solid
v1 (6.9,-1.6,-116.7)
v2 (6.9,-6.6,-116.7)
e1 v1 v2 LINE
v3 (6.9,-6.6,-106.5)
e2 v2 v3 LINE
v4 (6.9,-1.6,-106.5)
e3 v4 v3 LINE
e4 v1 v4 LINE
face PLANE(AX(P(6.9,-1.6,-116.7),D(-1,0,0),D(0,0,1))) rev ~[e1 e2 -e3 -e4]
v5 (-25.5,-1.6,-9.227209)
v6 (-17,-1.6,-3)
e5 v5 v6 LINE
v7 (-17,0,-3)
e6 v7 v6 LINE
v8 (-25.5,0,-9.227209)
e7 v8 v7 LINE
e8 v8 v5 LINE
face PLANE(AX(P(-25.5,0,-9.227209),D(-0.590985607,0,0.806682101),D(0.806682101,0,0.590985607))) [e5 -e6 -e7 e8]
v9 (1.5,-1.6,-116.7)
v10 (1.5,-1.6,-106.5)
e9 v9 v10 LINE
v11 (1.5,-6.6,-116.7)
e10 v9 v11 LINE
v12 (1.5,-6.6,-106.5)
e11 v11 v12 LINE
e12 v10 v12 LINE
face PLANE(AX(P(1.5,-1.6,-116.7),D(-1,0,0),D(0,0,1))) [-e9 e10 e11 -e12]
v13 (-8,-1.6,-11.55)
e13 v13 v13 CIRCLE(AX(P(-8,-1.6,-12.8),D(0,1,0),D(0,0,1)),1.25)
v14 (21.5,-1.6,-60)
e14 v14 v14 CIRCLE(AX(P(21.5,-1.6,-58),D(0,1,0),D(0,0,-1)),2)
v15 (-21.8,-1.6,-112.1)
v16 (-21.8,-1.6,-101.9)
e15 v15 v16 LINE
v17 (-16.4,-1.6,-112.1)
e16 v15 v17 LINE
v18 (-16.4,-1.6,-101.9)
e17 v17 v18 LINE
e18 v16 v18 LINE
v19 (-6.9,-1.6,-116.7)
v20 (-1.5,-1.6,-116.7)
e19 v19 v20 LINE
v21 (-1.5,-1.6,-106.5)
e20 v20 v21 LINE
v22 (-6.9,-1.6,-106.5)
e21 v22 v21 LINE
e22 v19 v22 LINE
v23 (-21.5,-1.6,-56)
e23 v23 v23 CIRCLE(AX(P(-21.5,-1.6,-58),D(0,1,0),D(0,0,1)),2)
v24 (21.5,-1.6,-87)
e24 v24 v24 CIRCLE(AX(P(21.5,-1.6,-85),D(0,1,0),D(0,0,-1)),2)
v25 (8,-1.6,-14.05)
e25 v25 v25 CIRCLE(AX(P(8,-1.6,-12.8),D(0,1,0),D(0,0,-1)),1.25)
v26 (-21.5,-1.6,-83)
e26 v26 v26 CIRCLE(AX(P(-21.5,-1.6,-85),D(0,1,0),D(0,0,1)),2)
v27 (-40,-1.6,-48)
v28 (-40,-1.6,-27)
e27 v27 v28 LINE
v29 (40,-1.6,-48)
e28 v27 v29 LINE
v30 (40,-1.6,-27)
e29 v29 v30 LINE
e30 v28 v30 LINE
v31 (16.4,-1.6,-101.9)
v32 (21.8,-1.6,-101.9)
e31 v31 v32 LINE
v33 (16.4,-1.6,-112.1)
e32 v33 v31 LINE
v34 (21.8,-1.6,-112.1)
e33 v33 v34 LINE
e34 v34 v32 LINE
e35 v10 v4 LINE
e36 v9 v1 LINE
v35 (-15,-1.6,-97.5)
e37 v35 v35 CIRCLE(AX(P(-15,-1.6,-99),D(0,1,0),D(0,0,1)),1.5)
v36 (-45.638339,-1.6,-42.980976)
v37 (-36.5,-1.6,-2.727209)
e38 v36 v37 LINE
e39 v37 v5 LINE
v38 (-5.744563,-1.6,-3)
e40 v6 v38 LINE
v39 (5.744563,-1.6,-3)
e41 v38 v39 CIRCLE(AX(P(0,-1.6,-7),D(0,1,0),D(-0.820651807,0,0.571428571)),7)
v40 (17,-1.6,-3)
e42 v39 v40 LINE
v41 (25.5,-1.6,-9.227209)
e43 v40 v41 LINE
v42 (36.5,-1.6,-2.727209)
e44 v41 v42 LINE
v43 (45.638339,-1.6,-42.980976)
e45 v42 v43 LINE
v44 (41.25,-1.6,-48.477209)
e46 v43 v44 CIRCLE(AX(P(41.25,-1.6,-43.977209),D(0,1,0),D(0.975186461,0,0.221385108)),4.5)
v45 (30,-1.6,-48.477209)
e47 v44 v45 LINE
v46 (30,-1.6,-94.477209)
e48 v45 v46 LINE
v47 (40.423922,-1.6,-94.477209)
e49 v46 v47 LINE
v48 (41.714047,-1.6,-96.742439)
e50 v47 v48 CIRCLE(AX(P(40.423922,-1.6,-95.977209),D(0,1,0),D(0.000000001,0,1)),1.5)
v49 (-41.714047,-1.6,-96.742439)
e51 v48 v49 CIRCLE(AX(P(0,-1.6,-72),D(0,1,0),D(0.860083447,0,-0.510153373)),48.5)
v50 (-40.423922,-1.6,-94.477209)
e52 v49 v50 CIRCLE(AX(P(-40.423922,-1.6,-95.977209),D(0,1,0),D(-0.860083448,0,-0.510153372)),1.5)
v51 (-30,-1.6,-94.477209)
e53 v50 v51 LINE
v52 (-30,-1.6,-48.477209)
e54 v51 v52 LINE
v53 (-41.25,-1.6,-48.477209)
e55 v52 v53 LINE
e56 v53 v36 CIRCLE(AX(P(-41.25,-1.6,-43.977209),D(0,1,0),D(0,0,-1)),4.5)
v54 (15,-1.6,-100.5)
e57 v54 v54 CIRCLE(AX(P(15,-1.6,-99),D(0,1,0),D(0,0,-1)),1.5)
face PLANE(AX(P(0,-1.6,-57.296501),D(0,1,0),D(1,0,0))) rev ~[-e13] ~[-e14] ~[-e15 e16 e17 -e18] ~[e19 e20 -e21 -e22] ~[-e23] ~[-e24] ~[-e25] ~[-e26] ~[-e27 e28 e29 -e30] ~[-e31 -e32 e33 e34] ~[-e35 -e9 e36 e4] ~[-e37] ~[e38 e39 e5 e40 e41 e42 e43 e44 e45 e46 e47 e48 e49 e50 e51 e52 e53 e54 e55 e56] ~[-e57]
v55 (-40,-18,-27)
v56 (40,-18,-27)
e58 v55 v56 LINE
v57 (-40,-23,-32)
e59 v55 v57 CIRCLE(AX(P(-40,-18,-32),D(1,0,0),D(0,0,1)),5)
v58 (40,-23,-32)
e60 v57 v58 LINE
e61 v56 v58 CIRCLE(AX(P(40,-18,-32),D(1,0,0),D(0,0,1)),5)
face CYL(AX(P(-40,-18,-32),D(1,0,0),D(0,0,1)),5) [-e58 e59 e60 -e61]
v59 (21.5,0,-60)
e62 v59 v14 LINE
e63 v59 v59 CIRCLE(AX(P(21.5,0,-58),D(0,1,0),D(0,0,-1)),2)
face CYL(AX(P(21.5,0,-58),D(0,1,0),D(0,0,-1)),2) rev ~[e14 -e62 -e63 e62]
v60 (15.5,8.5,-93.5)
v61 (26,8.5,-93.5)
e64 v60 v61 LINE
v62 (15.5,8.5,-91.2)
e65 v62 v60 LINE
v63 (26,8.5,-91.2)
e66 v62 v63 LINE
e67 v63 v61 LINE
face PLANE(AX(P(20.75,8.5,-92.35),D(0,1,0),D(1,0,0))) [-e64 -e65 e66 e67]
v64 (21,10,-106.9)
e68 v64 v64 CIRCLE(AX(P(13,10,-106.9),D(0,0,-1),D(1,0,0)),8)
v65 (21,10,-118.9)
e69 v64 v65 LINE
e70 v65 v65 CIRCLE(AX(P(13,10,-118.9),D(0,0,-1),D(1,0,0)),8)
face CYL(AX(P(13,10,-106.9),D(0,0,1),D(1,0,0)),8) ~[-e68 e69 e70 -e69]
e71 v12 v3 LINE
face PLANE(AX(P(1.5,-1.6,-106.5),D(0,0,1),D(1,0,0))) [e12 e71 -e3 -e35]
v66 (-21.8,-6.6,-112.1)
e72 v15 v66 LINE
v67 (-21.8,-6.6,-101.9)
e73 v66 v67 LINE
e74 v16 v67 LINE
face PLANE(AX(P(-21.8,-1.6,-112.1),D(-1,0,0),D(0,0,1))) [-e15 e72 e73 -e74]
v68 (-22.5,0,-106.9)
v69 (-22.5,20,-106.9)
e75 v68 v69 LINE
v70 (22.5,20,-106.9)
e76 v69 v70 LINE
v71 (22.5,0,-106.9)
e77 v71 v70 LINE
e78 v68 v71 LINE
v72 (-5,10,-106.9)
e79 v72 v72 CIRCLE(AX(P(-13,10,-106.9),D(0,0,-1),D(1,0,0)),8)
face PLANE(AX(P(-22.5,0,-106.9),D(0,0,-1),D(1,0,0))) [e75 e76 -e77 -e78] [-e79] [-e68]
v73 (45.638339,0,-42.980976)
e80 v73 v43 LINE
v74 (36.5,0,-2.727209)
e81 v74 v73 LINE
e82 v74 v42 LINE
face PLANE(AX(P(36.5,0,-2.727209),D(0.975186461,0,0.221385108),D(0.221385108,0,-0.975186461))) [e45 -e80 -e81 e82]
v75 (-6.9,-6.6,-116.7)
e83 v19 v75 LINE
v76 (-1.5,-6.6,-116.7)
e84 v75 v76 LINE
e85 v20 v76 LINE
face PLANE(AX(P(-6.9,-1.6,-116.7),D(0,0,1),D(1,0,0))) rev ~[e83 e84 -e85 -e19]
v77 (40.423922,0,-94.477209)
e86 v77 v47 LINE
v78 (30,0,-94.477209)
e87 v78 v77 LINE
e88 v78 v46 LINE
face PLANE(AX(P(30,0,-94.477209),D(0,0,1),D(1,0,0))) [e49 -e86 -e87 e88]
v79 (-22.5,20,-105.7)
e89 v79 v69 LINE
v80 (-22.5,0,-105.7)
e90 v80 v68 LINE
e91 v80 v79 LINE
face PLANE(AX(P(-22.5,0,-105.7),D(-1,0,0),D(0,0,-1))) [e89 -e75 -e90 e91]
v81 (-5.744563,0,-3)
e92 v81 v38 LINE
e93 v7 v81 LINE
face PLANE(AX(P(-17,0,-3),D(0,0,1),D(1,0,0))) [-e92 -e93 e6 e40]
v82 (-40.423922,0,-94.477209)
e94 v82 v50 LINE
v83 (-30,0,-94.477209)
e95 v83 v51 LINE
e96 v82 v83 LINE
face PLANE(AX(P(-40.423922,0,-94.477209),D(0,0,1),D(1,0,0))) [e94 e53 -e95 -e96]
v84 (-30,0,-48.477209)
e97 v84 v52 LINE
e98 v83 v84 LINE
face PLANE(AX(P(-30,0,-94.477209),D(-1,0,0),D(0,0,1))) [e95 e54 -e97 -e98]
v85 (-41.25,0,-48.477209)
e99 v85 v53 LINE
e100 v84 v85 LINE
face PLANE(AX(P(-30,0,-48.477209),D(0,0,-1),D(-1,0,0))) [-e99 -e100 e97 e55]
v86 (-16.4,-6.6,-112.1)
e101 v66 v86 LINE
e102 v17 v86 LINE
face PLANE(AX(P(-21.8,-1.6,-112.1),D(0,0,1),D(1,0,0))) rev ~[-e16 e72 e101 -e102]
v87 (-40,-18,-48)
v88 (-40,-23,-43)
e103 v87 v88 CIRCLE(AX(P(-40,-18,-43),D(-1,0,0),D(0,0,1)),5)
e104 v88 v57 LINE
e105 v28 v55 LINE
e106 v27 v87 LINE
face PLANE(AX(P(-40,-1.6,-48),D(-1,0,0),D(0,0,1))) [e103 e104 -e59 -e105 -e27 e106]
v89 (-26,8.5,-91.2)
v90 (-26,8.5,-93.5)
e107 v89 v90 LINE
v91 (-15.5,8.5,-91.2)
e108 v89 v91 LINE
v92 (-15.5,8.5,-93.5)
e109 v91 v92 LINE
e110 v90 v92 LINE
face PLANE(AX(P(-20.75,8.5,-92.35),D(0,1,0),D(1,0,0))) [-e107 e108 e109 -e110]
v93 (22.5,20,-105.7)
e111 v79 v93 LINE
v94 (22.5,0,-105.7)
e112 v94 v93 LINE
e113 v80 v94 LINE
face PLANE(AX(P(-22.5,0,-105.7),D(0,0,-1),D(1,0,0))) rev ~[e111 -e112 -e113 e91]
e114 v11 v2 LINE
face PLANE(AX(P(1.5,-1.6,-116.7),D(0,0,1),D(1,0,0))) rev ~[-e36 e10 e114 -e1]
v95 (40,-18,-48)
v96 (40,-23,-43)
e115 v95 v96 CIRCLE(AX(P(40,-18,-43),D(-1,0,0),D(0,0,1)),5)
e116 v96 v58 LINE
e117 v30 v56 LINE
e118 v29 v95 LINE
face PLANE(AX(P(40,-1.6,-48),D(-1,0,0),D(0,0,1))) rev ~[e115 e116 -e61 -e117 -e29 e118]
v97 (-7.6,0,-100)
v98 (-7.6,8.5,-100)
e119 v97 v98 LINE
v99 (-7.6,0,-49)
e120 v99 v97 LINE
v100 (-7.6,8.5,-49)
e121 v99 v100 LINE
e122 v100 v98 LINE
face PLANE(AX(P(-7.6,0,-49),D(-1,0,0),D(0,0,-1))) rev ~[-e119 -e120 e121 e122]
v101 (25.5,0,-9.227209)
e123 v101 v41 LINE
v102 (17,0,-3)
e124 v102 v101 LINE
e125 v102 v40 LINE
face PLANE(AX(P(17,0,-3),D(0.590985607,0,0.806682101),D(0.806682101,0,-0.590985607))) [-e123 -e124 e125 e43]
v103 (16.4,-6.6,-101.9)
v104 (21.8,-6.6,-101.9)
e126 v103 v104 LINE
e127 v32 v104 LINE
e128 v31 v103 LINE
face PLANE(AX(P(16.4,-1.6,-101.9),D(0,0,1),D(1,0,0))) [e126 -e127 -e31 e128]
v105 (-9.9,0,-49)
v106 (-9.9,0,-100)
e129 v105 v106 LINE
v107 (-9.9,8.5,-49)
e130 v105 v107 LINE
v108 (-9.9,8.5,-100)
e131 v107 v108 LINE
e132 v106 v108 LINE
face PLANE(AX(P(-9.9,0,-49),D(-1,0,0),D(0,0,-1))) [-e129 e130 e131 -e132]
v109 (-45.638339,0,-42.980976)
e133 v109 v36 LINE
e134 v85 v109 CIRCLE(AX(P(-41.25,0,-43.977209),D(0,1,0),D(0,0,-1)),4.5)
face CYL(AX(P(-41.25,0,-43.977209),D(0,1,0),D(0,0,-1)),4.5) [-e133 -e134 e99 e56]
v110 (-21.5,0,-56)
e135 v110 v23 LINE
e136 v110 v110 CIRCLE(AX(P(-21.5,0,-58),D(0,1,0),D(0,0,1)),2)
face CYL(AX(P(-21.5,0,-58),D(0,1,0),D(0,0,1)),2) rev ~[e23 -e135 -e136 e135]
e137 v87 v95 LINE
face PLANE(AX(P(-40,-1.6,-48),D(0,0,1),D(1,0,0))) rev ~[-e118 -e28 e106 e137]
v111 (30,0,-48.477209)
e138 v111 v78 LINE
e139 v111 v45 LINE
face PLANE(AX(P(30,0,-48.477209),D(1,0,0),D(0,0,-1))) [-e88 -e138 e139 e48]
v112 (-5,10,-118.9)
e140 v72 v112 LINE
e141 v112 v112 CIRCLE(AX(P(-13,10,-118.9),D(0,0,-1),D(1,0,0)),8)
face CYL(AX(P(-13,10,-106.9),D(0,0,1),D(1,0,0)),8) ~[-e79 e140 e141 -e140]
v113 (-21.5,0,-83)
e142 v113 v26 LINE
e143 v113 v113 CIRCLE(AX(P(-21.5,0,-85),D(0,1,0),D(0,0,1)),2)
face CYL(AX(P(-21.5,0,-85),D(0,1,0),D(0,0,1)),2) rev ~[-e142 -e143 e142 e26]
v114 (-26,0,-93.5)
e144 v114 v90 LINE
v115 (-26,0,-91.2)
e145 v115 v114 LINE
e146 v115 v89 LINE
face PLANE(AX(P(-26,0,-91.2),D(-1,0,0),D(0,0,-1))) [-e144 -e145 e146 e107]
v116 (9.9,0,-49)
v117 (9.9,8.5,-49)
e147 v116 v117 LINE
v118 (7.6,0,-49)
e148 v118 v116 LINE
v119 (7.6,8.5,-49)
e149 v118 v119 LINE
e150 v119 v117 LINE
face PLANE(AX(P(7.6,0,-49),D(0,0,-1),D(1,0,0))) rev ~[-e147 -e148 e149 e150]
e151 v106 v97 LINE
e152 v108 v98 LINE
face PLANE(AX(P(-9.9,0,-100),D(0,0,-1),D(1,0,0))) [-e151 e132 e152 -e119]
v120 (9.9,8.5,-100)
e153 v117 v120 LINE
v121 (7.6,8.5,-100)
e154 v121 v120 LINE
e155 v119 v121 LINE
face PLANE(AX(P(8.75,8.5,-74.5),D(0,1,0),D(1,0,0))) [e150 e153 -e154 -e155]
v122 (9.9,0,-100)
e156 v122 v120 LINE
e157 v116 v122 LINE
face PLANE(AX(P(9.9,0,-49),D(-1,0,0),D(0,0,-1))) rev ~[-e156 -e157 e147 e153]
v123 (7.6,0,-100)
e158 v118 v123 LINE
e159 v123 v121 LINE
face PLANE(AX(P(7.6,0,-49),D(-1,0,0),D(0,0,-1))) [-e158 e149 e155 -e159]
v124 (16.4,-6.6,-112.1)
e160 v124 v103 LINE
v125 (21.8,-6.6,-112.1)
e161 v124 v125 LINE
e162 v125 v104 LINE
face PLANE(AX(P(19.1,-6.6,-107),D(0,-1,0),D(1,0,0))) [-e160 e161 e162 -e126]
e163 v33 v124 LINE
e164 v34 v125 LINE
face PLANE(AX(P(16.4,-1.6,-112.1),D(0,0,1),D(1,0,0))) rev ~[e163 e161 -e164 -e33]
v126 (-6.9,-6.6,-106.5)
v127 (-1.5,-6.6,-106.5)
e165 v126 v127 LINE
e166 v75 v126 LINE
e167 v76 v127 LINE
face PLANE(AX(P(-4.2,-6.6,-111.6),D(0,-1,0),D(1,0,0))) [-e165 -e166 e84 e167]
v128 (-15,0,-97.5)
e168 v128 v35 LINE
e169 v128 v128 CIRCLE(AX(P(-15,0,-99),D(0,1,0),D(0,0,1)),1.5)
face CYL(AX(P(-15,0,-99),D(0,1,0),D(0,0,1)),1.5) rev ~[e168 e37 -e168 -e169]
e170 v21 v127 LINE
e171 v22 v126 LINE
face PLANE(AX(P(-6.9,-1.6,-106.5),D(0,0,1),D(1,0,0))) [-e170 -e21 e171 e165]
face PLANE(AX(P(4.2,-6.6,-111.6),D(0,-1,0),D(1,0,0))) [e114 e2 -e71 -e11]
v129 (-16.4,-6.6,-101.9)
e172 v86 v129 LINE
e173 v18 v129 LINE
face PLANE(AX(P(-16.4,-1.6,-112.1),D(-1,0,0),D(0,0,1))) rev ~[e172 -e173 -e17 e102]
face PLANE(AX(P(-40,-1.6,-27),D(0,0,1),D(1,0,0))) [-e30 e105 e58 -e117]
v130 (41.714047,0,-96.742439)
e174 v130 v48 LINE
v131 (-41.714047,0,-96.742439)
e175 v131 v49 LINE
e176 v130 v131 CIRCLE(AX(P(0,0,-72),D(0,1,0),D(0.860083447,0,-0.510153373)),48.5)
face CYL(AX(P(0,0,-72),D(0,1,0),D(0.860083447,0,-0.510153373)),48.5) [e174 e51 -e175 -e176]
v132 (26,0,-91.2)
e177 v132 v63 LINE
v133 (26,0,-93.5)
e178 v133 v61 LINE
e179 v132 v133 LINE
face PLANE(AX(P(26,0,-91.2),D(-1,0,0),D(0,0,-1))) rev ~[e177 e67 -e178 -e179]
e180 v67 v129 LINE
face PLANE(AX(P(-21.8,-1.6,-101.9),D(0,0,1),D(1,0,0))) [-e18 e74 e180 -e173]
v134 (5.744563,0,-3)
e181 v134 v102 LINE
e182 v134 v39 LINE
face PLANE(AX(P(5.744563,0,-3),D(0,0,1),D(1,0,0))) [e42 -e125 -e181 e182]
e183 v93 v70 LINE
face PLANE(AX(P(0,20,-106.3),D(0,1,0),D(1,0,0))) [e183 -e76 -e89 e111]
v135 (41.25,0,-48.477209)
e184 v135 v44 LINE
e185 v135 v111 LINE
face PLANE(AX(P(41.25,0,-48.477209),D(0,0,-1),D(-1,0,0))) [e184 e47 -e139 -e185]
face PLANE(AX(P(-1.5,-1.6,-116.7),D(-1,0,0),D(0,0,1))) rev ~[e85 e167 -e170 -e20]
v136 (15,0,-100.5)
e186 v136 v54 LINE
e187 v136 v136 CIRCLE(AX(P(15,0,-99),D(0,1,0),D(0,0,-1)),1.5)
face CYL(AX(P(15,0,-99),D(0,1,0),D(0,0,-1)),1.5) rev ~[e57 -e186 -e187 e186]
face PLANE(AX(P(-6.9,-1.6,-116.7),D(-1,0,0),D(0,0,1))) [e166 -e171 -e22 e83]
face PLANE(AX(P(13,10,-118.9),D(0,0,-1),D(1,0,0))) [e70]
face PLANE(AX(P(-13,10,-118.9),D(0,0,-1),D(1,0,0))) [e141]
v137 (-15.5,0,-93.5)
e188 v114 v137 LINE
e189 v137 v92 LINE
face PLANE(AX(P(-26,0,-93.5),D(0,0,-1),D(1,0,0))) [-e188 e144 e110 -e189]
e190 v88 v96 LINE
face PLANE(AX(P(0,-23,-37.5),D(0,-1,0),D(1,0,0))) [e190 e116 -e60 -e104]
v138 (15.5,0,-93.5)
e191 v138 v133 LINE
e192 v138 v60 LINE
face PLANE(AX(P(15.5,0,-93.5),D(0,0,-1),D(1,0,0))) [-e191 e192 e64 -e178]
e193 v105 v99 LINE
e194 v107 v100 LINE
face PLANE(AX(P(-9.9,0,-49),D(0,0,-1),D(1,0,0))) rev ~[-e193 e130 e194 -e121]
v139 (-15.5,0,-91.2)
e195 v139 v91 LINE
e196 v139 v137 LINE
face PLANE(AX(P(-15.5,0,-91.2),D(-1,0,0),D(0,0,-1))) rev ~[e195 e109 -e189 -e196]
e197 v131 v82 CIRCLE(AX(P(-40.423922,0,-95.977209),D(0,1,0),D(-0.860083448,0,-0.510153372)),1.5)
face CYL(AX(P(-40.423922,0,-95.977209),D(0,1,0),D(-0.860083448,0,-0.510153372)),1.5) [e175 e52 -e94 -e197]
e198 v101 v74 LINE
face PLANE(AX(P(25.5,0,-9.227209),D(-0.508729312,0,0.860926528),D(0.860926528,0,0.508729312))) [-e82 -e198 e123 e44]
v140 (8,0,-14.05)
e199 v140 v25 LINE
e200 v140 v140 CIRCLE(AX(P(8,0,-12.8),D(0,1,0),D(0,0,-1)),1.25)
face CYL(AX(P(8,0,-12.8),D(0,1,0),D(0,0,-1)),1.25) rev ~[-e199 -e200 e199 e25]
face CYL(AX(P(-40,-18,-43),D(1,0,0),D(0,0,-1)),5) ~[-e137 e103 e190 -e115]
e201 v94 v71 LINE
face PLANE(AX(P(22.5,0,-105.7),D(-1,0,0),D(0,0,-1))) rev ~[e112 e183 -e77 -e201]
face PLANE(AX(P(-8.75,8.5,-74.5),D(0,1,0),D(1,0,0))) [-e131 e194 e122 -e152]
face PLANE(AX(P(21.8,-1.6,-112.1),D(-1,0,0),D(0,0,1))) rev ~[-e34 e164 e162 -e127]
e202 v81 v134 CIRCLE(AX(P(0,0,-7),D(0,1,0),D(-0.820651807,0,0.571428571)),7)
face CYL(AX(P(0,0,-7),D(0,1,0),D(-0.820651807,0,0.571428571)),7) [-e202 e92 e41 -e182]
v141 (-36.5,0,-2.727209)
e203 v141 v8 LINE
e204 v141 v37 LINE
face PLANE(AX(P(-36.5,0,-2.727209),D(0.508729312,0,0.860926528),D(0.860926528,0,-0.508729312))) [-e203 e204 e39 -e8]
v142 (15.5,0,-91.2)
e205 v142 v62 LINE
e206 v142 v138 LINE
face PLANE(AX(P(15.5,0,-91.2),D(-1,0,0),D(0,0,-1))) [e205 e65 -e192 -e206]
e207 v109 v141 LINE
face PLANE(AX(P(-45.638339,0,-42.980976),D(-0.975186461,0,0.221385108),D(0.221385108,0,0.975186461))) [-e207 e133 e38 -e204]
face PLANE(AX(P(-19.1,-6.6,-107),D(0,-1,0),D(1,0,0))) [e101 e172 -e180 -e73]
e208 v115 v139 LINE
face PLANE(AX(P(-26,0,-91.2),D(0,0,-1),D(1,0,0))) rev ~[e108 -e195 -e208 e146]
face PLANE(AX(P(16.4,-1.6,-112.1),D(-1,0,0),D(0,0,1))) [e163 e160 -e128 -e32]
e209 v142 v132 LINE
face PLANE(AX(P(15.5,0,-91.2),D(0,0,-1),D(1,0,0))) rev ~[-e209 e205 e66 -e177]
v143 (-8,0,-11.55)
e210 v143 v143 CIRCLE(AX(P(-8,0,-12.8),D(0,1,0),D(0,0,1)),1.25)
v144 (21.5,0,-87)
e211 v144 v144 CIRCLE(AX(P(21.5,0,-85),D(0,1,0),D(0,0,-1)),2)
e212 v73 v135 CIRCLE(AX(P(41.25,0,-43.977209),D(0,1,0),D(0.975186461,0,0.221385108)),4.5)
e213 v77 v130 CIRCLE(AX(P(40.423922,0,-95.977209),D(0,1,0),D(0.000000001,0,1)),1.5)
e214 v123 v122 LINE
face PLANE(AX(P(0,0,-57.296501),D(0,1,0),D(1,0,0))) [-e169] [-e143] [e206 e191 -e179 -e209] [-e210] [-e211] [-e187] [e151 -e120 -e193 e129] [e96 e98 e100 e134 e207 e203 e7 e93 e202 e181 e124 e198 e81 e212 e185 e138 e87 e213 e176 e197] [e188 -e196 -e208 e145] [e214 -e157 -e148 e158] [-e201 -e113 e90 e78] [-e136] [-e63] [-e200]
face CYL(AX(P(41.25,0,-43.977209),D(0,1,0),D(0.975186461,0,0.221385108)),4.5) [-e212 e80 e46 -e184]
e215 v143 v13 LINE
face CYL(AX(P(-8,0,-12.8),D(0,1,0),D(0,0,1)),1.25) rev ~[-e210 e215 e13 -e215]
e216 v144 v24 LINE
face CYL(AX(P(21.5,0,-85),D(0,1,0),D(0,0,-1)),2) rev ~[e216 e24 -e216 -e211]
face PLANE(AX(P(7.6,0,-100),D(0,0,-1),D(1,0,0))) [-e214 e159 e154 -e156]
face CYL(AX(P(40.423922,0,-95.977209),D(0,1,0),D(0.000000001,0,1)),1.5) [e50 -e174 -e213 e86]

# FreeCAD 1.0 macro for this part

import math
import FreeCAD as App
import Part
import Sketcher
from FreeCAD import Vector


def edges_at(feature, points):
    """Names of the edges that pass closest to the given points."""
    edges = feature.Shape.Edges
    near = lambda p: min(range(len(edges)), key=lambda i: edges[i].distToShape(Part.Vertex(*p))[0])
    return sorted({f"Edge{near(p) + 1}" for p in points})

doc = App.newDocument("Part")
body = doc.addObject("PartDesign::Body", "Body")

# Sketch on XZ plane
sketch1 = doc.addObject("Sketcher::SketchObject", "Sketch")
body.addObject(sketch1)
sketch1.AttachmentSupport = (doc.XZ_Plane, [""])
sketch1.MapMode = "FlatFace"
sketch1.addGeometry([
    Part.LineSegment(Vector(-25.5, -9.2, 0), Vector(-17, -3, 0)),  # 0
    Part.LineSegment(Vector(-17, -3, 0), Vector(-5.7, -3, 0)),  # 1
    Part.ArcOfCircle(Part.Circle(Vector(0, -7, 0), Vector(0, 0, 1), 7), math.radians(35), math.radians(145)),  # 2
    Part.LineSegment(Vector(5.7, -3, 0), Vector(17, -3, 0)),  # 3
    Part.LineSegment(Vector(17, -3, 0), Vector(25.5, -9.2, 0)),  # 4
    Part.LineSegment(Vector(25.5, -9.2, 0), Vector(36.5, -2.7, 0)),  # 5
    Part.LineSegment(Vector(36.5, -2.7, 0), Vector(45.6, -43, 0)),  # 6
    Part.ArcOfCircle(Part.Circle(Vector(41.3, -44, 0), Vector(0, 0, 1), 4.5), math.radians(-90), math.radians(13)),  # 7
    Part.LineSegment(Vector(41.2, -48.5, 0), Vector(30, -48.5, 0)),  # 8
    Part.LineSegment(Vector(30, -48.5, 0), Vector(30, -94.5, 0)),  # 9
    Part.LineSegment(Vector(30, -94.5, 0), Vector(40.4, -94.5, 0)),  # 10
    Part.ArcOfCircle(Part.Circle(Vector(40.4, -96, 0), Vector(0, 0, 1), 1.5), math.radians(-31), math.radians(90)),  # 11
    Part.ArcOfCircle(Part.Circle(Vector(0, -72, 0), Vector(0, 0, 1), 48.5), math.radians(-149), math.radians(-31)),  # 12
    Part.ArcOfCircle(Part.Circle(Vector(-40.4, -96, 0), Vector(0, 0, 1), 1.5), math.radians(90), math.radians(211)),  # 13
    Part.LineSegment(Vector(-40.4, -94.5, 0), Vector(-30, -94.5, 0)),  # 14
    Part.LineSegment(Vector(-30, -94.5, 0), Vector(-30, -48.5, 0)),  # 15
    Part.LineSegment(Vector(-30, -48.5, 0), Vector(-41.2, -48.5, 0)),  # 16
    Part.ArcOfCircle(Part.Circle(Vector(-41.3, -44, 0), Vector(0, 0, 1), 4.5), math.radians(167), math.radians(270)),  # 17
    Part.LineSegment(Vector(-45.6, -43, 0), Vector(-36.5, -2.7, 0)),  # 18
    Part.LineSegment(Vector(-36.5, -2.7, 0), Vector(-25.5, -9.2, 0)),  # 19
], False)
sketch1.addConstraint([
    Sketcher.Constraint("Coincident", 0, 2, 1, 1),
    Sketcher.Constraint("Coincident", 1, 2, 2, 2),
    Sketcher.Constraint("Coincident", 2, 1, 3, 1),
    Sketcher.Constraint("Coincident", 3, 2, 4, 1),
    Sketcher.Constraint("Coincident", 4, 2, 5, 1),
    Sketcher.Constraint("Coincident", 5, 2, 6, 1),
    Sketcher.Constraint("Tangent", 6, 2, 7, 2),
    Sketcher.Constraint("Tangent", 7, 1, 8, 1),
    Sketcher.Constraint("Coincident", 8, 2, 9, 1),
    Sketcher.Constraint("Coincident", 9, 2, 10, 1),
    Sketcher.Constraint("Tangent", 10, 2, 11, 2),
    Sketcher.Constraint("Tangent", 11, 1, 12, 2),
    Sketcher.Constraint("Tangent", 12, 1, 13, 2),
    Sketcher.Constraint("Tangent", 13, 1, 14, 1),
    Sketcher.Constraint("Coincident", 14, 2, 15, 1),
    Sketcher.Constraint("Coincident", 15, 2, 16, 1),
    Sketcher.Constraint("Tangent", 16, 2, 17, 2),
    Sketcher.Constraint("Tangent", 17, 1, 18, 1),
    Sketcher.Constraint("Coincident", 18, 2, 19, 1),
    Sketcher.Constraint("Coincident", 19, 2, 0, 1),
    Sketcher.Constraint("Horizontal", 1),
    Sketcher.Constraint("Horizontal", 3),
    Sketcher.Constraint("Horizontal", 8),
    Sketcher.Constraint("Vertical", 9),
    Sketcher.Constraint("Horizontal", 10),
    Sketcher.Constraint("Horizontal", 14),
    Sketcher.Constraint("Vertical", 15),
    Sketcher.Constraint("Horizontal", 16),
    Sketcher.Constraint("Equal", 11, 13),
    Sketcher.Constraint("Equal", 7, 17),
    Sketcher.Constraint("Symmetric", 11, 3, 13, 3, -2),
    Sketcher.Constraint("Symmetric", 7, 3, 17, 3, -2),
    Sketcher.Constraint("Symmetric", 1, 2, 2, 1, -2),
    Sketcher.Constraint("Symmetric", 5, 2, 18, 2, -2),
    Sketcher.Constraint("Symmetric", 4, 2, 19, 2, -2),
    Sketcher.Constraint("Equal", 1, 3),
    Sketcher.Constraint("Equal", 10, 14),
    Sketcher.Constraint("Radius", 2, 7.0),
    Sketcher.Constraint("Radius", 7, 4.5),
    Sketcher.Constraint("Radius", 11, 1.5),
    Sketcher.Constraint("Radius", 12, 48.5),
    Sketcher.Constraint("DistanceY", 9, 2, 9, 1, 46.0),
    Sketcher.Constraint("DistanceY", 2, 3, -1, 1, 7.0),
    Sketcher.Constraint("DistanceY", 12, 3, -1, 1, 72.0),
    Sketcher.Constraint("DistanceX", 0, 2, -1, 1, 17.0),
    Sketcher.Constraint("DistanceY", 0, 2, -1, 1, 3.0),
    Sketcher.Constraint("DistanceX", -1, 1, 8, 2, 30.0),
    Sketcher.Constraint("DistanceX", 4, 2, 5, 2, 11.0),
    Sketcher.Constraint("DistanceX", 8, 2, 8, 1, 11.25),
    Sketcher.Constraint("DistanceX", -1, 1, 4, 2, 25.5),
    Sketcher.Constraint("DistanceY", 4, 2, 5, 2, 6.5),
    Sketcher.Constraint("DistanceY", 7, 3, 4, 2, 34.75),
    Sketcher.Constraint("Distance", 0, 10.536988),
])
pad1 = doc.addObject("PartDesign::Pad", "Pad")
body.addObject(pad1)
pad1.Profile = sketch1
pad1.Length = 1.6

# Sketch on XZ plane
sketch2 = doc.addObject("Sketcher::SketchObject", "Sketch001")
body.addObject(sketch2)
sketch2.AttachmentSupport = (doc.XZ_Plane, [""])
sketch2.MapMode = "FlatFace"
sketch2.addGeometry([
    Part.LineSegment(Vector(-22.5, -106.9, 0), Vector(-22.5, -105.7, 0)),
    Part.LineSegment(Vector(-22.5, -105.7, 0), Vector(22.5, -105.7, 0)),
    Part.LineSegment(Vector(22.5, -105.7, 0), Vector(22.5, -106.9, 0)),
    Part.LineSegment(Vector(22.5, -106.9, 0), Vector(-22.5, -106.9, 0)),
], False)
sketch2.addConstraint([
    Sketcher.Constraint("Coincident", 0, 2, 1, 1),
    Sketcher.Constraint("Coincident", 1, 2, 2, 1),
    Sketcher.Constraint("Coincident", 2, 2, 3, 1),
    Sketcher.Constraint("Coincident", 3, 2, 0, 1),
    Sketcher.Constraint("Vertical", 0),
    Sketcher.Constraint("Horizontal", 1),
    Sketcher.Constraint("Vertical", 2),
    Sketcher.Constraint("Horizontal", 3),
    Sketcher.Constraint("DistanceX", 1, 1, 1, 2, 45.0),
    Sketcher.Constraint("DistanceY", 0, 1, 0, 2, 1.2),
    Sketcher.Constraint("DistanceX", 0, 2, -1, 1, 22.5),
    Sketcher.Constraint("DistanceY", 0, 2, -1, 1, 105.7),
])
pad2 = doc.addObject("PartDesign::Pad", "Pad001")
body.addObject(pad2)
pad2.Profile = sketch2
pad2.Length = 20
pad2.Reversed = True

# Sketch on XY plane
sketch3 = doc.addObject("Sketcher::SketchObject", "Sketch002")
body.addObject(sketch3)
sketch3.AttachmentSupport = (doc.XY_Plane, [""])
sketch3.MapMode = "FlatFace"
sketch3.AttachmentOffset = App.Placement(Vector(0, 0, -106.9), App.Rotation())
sketch3.addGeometry([
    Part.Circle(Vector(13, 10, 0), Vector(0, 0, 1), 8),
    Part.Circle(Vector(-13, 10, 0), Vector(0, 0, 1), 8),
], False)
sketch3.addConstraint([
    Sketcher.Constraint("Equal", 0, 1),
    Sketcher.Constraint("Symmetric", 0, 3, 1, 3, -2),
    Sketcher.Constraint("Diameter", 0, 16.0),
    Sketcher.Constraint("DistanceX", -1, 1, 0, 3, 13.0),
    Sketcher.Constraint("DistanceY", -1, 1, 0, 3, 10.0),
])
pad3 = doc.addObject("PartDesign::Pad", "Pad002")
body.addObject(pad3)
pad3.Profile = sketch3
pad3.Length = 12
pad3.Reversed = True

# Sketch on XZ plane
sketch4 = doc.addObject("Sketcher::SketchObject", "Sketch003")
body.addObject(sketch4)
sketch4.AttachmentSupport = (doc.XZ_Plane, [""])
sketch4.MapMode = "FlatFace"
sketch4.AttachmentOffset = App.Placement(Vector(0, 0, 1.6), App.Rotation())
sketch4.addGeometry([
    Part.LineSegment(Vector(-40, -27, 0), Vector(-40, -48, 0)),
    Part.LineSegment(Vector(-40, -48, 0), Vector(40, -48, 0)),
    Part.LineSegment(Vector(40, -48, 0), Vector(40, -27, 0)),
    Part.LineSegment(Vector(40, -27, 0), Vector(-40, -27, 0)),
], False)
sketch4.addConstraint([
    Sketcher.Constraint("Coincident", 0, 2, 1, 1),
    Sketcher.Constraint("Coincident", 1, 2, 2, 1),
    Sketcher.Constraint("Coincident", 2, 2, 3, 1),
    Sketcher.Constraint("Coincident", 3, 2, 0, 1),
    Sketcher.Constraint("Vertical", 0),
    Sketcher.Constraint("Horizontal", 1),
    Sketcher.Constraint("Vertical", 2),
    Sketcher.Constraint("Horizontal", 3),
    Sketcher.Constraint("DistanceX", 1, 1, 1, 2, 80.0),
    Sketcher.Constraint("DistanceY", 0, 2, 0, 1, 21.0),
    Sketcher.Constraint("DistanceX", 0, 2, -1, 1, 40.0),
    Sketcher.Constraint("DistanceY", 0, 2, -1, 1, 48.0),
])
pad4 = doc.addObject("PartDesign::Pad", "Pad003")
body.addObject(pad4)
pad4.Profile = sketch4
pad4.Length = 21.4
doc.recompute()

fillet = doc.addObject("PartDesign::Fillet", "Fillet")
body.addObject(fillet)
fillet.Base = (pad4, edges_at(pad4, [(0, -23, -48), (0, -23, -27)]))
fillet.Radius = 5

# Sketch on XZ plane
sketch5 = doc.addObject("Sketcher::SketchObject", "Sketch004")
body.addObject(sketch5)
sketch5.AttachmentSupport = (doc.XZ_Plane, [""])
sketch5.MapMode = "FlatFace"
sketch5.addGeometry(Part.Circle(Vector(-8, -12.8, 0), Vector(0, 0, 1), 1.2), False)
sketch5.addConstraint([
    Sketcher.Constraint("Diameter", 0, 2.5),
    Sketcher.Constraint("DistanceX", 0, 3, -1, 1, 8.0),
    Sketcher.Constraint("DistanceY", 0, 3, -1, 1, 12.8),
])
pocket1 = doc.addObject("PartDesign::Pocket", "Pocket")
body.addObject(pocket1)
pocket1.Profile = sketch5
pocket1.Type = "UpToFirst"
pocket1.Reversed = True

# Sketch on XZ plane
sketch6 = doc.addObject("Sketcher::SketchObject", "Sketch005")
body.addObject(sketch6)
sketch6.AttachmentSupport = (doc.XZ_Plane, [""])
sketch6.MapMode = "FlatFace"
sketch6.addGeometry(Part.Circle(Vector(-21.5, -58, 0), Vector(0, 0, 1), 2), False)
sketch6.addConstraint([
    Sketcher.Constraint("Diameter", 0, 4.0),
    Sketcher.Constraint("DistanceY", 0, 3, -1, 1, 58.0),
    Sketcher.Constraint("DistanceX", 0, 3, -1, 1, 21.5),
])
pocket2 = doc.addObject("PartDesign::Pocket", "Pocket001")
body.addObject(pocket2)
pocket2.Profile = sketch6
pocket2.Type = "UpToFirst"
pocket2.Reversed = True

# Sketch on XZ plane
sketch7 = doc.addObject("Sketcher::SketchObject", "Sketch006")
body.addObject(sketch7)
sketch7.AttachmentSupport = (doc.XZ_Plane, [""])
sketch7.MapMode = "FlatFace"
sketch7.addGeometry(Part.Circle(Vector(-21.5, -85, 0), Vector(0, 0, 1), 2), False)
sketch7.addConstraint([
    Sketcher.Constraint("Diameter", 0, 4.0),
    Sketcher.Constraint("DistanceY", 0, 3, -1, 1, 85.0),
    Sketcher.Constraint("DistanceX", 0, 3, -1, 1, 21.5),
])
pocket3 = doc.addObject("PartDesign::Pocket", "Pocket002")
body.addObject(pocket3)
pocket3.Profile = sketch7
pocket3.Type = "UpToFirst"
pocket3.Reversed = True

# Sketch on XZ plane
sketch8 = doc.addObject("Sketcher::SketchObject", "Sketch007")
body.addObject(sketch8)
sketch8.AttachmentSupport = (doc.XZ_Plane, [""])
sketch8.MapMode = "FlatFace"
sketch8.addGeometry(Part.Circle(Vector(-15, -99, 0), Vector(0, 0, 1), 1.5), False)
sketch8.addConstraint([
    Sketcher.Constraint("Diameter", 0, 3.0),
    Sketcher.Constraint("DistanceX", 0, 3, -1, 1, 15.0),
    Sketcher.Constraint("DistanceY", 0, 3, -1, 1, 99.0),
])
pocket4 = doc.addObject("PartDesign::Pocket", "Pocket003")
body.addObject(pocket4)
pocket4.Profile = sketch8
pocket4.Type = "UpToFirst"
pocket4.Reversed = True

# Sketch on XZ plane
sketch9 = doc.addObject("Sketcher::SketchObject", "Sketch008")
body.addObject(sketch9)
sketch9.AttachmentSupport = (doc.XZ_Plane, [""])
sketch9.MapMode = "FlatFace"
sketch9.addGeometry(Part.Circle(Vector(15, -99, 0), Vector(0, 0, 1), 1.5), False)
sketch9.addConstraint([
    Sketcher.Constraint("Diameter", 0, 3.0),
    Sketcher.Constraint("DistanceX", -1, 1, 0, 3, 15.0),
    Sketcher.Constraint("DistanceY", 0, 3, -1, 1, 99.0),
])
pocket5 = doc.addObject("PartDesign::Pocket", "Pocket004")
body.addObject(pocket5)
pocket5.Profile = sketch9
pocket5.Type = "UpToFirst"
pocket5.Reversed = True

# Sketch on XZ plane
sketch10 = doc.addObject("Sketcher::SketchObject", "Sketch009")
body.addObject(sketch10)
sketch10.AttachmentSupport = (doc.XZ_Plane, [""])
sketch10.MapMode = "FlatFace"
sketch10.addGeometry(Part.Circle(Vector(21.5, -85, 0), Vector(0, 0, 1), 2), False)
sketch10.addConstraint([
    Sketcher.Constraint("Diameter", 0, 4.0),
    Sketcher.Constraint("DistanceY", 0, 3, -1, 1, 85.0),
    Sketcher.Constraint("DistanceX", -1, 1, 0, 3, 21.5),
])
pocket6 = doc.addObject("PartDesign::Pocket", "Pocket005")
body.addObject(pocket6)
pocket6.Profile = sketch10
pocket6.Type = "UpToFirst"
pocket6.Reversed = True

# Sketch on XZ plane
sketch11 = doc.addObject("Sketcher::SketchObject", "Sketch010")
body.addObject(sketch11)
sketch11.AttachmentSupport = (doc.XZ_Plane, [""])
sketch11.MapMode = "FlatFace"
sketch11.addGeometry(Part.Circle(Vector(21.5, -58, 0), Vector(0, 0, 1), 2), False)
sketch11.addConstraint([
    Sketcher.Constraint("Diameter", 0, 4.0),
    Sketcher.Constraint("DistanceY", 0, 3, -1, 1, 58.0),
    Sketcher.Constraint("DistanceX", -1, 1, 0, 3, 21.5),
])
pocket7 = doc.addObject("PartDesign::Pocket", "Pocket006")
body.addObject(pocket7)
pocket7.Profile = sketch11
pocket7.Type = "UpToFirst"
pocket7.Reversed = True

# Sketch on XZ plane
sketch12 = doc.addObject("Sketcher::SketchObject", "Sketch011")
body.addObject(sketch12)
sketch12.AttachmentSupport = (doc.XZ_Plane, [""])
sketch12.MapMode = "FlatFace"
sketch12.addGeometry(Part.Circle(Vector(8, -12.8, 0), Vector(0, 0, 1), 1.2), False)
sketch12.addConstraint([
    Sketcher.Constraint("Diameter", 0, 2.5),
    Sketcher.Constraint("DistanceX", -1, 1, 0, 3, 8.0),
    Sketcher.Constraint("DistanceY", 0, 3, -1, 1, 12.8),
])
pocket8 = doc.addObject("PartDesign::Pocket", "Pocket007")
body.addObject(pocket8)
pocket8.Profile = sketch12
pocket8.Type = "UpToFirst"
pocket8.Reversed = True

# Sketch on XZ plane
sketch13 = doc.addObject("Sketcher::SketchObject", "Sketch012")
body.addObject(sketch13)
sketch13.AttachmentSupport = (doc.XZ_Plane, [""])
sketch13.MapMode = "FlatFace"
sketch13.addGeometry([
    Part.LineSegment(Vector(-9.9, -100, 0), Vector(-9.9, -49, 0)),  # 0
    Part.LineSegment(Vector(-9.9, -49, 0), Vector(-7.6, -49, 0)),  # 1
    Part.LineSegment(Vector(-7.6, -49, 0), Vector(-7.6, -100, 0)),  # 2
    Part.LineSegment(Vector(-7.6, -100, 0), Vector(-9.9, -100, 0)),  # 3
    Part.LineSegment(Vector(-26, -93.5, 0), Vector(-26, -91.2, 0)),  # 4
    Part.LineSegment(Vector(-26, -91.2, 0), Vector(-15.5, -91.2, 0)),  # 5
    Part.LineSegment(Vector(-15.5, -91.2, 0), Vector(-15.5, -93.5, 0)),  # 6
    Part.LineSegment(Vector(-15.5, -93.5, 0), Vector(-26, -93.5, 0)),  # 7
    Part.LineSegment(Vector(15.5, -93.5, 0), Vector(15.5, -91.2, 0)),  # 8
    Part.LineSegment(Vector(15.5, -91.2, 0), Vector(26, -91.2, 0)),  # 9
    Part.LineSegment(Vector(26, -91.2, 0), Vector(26, -93.5, 0)),  # 10
    Part.LineSegment(Vector(26, -93.5, 0), Vector(15.5, -93.5, 0)),  # 11
    Part.LineSegment(Vector(7.6, -100, 0), Vector(7.6, -49, 0)),  # 12
    Part.LineSegment(Vector(7.6, -49, 0), Vector(9.9, -49, 0)),  # 13
    Part.LineSegment(Vector(9.9, -49, 0), Vector(9.9, -100, 0)),  # 14
    Part.LineSegment(Vector(9.9, -100, 0), Vector(7.6, -100, 0)),  # 15
], False)
sketch13.addConstraint([
    Sketcher.Constraint("Coincident", 0, 2, 1, 1),
    Sketcher.Constraint("Coincident", 1, 2, 2, 1),
    Sketcher.Constraint("Coincident", 2, 2, 3, 1),
    Sketcher.Constraint("Coincident", 3, 2, 0, 1),
    Sketcher.Constraint("Coincident", 4, 2, 5, 1),
    Sketcher.Constraint("Coincident", 5, 2, 6, 1),
    Sketcher.Constraint("Coincident", 6, 2, 7, 1),
    Sketcher.Constraint("Coincident", 7, 2, 4, 1),
    Sketcher.Constraint("Coincident", 8, 2, 9, 1),
    Sketcher.Constraint("Coincident", 9, 2, 10, 1),
    Sketcher.Constraint("Coincident", 10, 2, 11, 1),
    Sketcher.Constraint("Coincident", 11, 2, 8, 1),
    Sketcher.Constraint("Coincident", 12, 2, 13, 1),
    Sketcher.Constraint("Coincident", 13, 2, 14, 1),
    Sketcher.Constraint("Coincident", 14, 2, 15, 1),
    Sketcher.Constraint("Coincident", 15, 2, 12, 1),
    Sketcher.Constraint("Vertical", 0),
    Sketcher.Constraint("Horizontal", 1),
    Sketcher.Constraint("Vertical", 2),
    Sketcher.Constraint("Horizontal", 3),
    Sketcher.Constraint("Vertical", 4),
    Sketcher.Constraint("Horizontal", 5),
    Sketcher.Constraint("Vertical", 6),
    Sketcher.Constraint("Horizontal", 7),
    Sketcher.Constraint("Vertical", 8),
    Sketcher.Constraint("Horizontal", 9),
    Sketcher.Constraint("Vertical", 10),
    Sketcher.Constraint("Horizontal", 11),
    Sketcher.Constraint("Vertical", 12),
    Sketcher.Constraint("Horizontal", 13),
    Sketcher.Constraint("Vertical", 14),
    Sketcher.Constraint("Horizontal", 15),
    Sketcher.Constraint("Symmetric", 5, 2, 8, 2, -2),
    Sketcher.Constraint("Symmetric", 7, 2, 10, 2, -2),
    Sketcher.Constraint("Symmetric", 1, 2, 12, 2, -2),
    Sketcher.Constraint("Symmetric", 3, 2, 14, 2, -2),
    Sketcher.Constraint("Equal", 15, 4),
    Sketcher.Constraint("DistanceY", 0, 1, 0, 2, 51.0),
    Sketcher.Constraint("DistanceX", 1, 1, 1, 2, 2.3),
    Sketcher.Constraint("DistanceX", 5, 1, 5, 2, 10.5),
    Sketcher.Constraint("DistanceY", 0, 2, -1, 1, 49.0),
    Sketcher.Constraint("DistanceX", 4, 2, -1, 1, 26.0),
    Sketcher.Constraint("DistanceX", 0, 2, -1, 1, 9.9),
    Sketcher.Constraint("DistanceY", 4, 2, -1, 1, 91.2),
])
pad5 = doc.addObject("PartDesign::Pad", "Pad004")
body.addObject(pad5)
pad5.Profile = sketch13
pad5.Length = 8.5
pad5.Reversed = True

# Sketch on XZ plane
sketch14 = doc.addObject("Sketcher::SketchObject", "Sketch013")
body.addObject(sketch14)
sketch14.AttachmentSupport = (doc.XZ_Plane, [""])
sketch14.MapMode = "FlatFace"
sketch14.AttachmentOffset = App.Placement(Vector(0, 0, 1.6), App.Rotation())
sketch14.addGeometry([
    Part.LineSegment(Vector(2, -106, 0), Vector(2, -117, 0)),  # 0
    Part.LineSegment(Vector(2, -117, 0), Vector(7, -117, 0)),  # 1
    Part.LineSegment(Vector(7, -117, 0), Vector(7, -106, 0)),  # 2
    Part.LineSegment(Vector(7, -106, 0), Vector(2, -106, 0)),  # 3
    Part.LineSegment(Vector(-7, -106, 0), Vector(-7, -117, 0)),  # 4
    Part.LineSegment(Vector(-7, -117, 0), Vector(-2, -117, 0)),  # 5
    Part.LineSegment(Vector(-2, -117, 0), Vector(-2, -106, 0)),  # 6
    Part.LineSegment(Vector(-2, -106, 0), Vector(-7, -106, 0)),  # 7
    Part.LineSegment(Vector(-22, -102, 0), Vector(-22, -112, 0)),  # 8
    Part.LineSegment(Vector(-22, -112, 0), Vector(-16, -112, 0)),  # 9
    Part.LineSegment(Vector(-16, -112, 0), Vector(-16, -102, 0)),  # 10
    Part.LineSegment(Vector(-16, -102, 0), Vector(-22, -102, 0)),  # 11
    Part.LineSegment(Vector(16, -102, 0), Vector(16, -112, 0)),  # 12
    Part.LineSegment(Vector(16, -112, 0), Vector(22, -112, 0)),  # 13
    Part.LineSegment(Vector(22, -112, 0), Vector(22, -102, 0)),  # 14
    Part.LineSegment(Vector(22, -102, 0), Vector(16, -102, 0)),  # 15
], False)
sketch14.addConstraint([
    Sketcher.Constraint("Coincident", 0, 2, 1, 1),
    Sketcher.Constraint("Coincident", 1, 2, 2, 1),
    Sketcher.Constraint("Coincident", 2, 2, 3, 1),
    Sketcher.Constraint("Coincident", 3, 2, 0, 1),
    Sketcher.Constraint("Coincident", 4, 2, 5, 1),
    Sketcher.Constraint("Coincident", 5, 2, 6, 1),
    Sketcher.Constraint("Coincident", 6, 2, 7, 1),
    Sketcher.Constraint("Coincident", 7, 2, 4, 1),
    Sketcher.Constraint("Coincident", 8, 2, 9, 1),
    Sketcher.Constraint("Coincident", 9, 2, 10, 1),
    Sketcher.Constraint("Coincident", 10, 2, 11, 1),
    Sketcher.Constraint("Coincident", 11, 2, 8, 1),
    Sketcher.Constraint("Coincident", 12, 2, 13, 1),
    Sketcher.Constraint("Coincident", 13, 2, 14, 1),
    Sketcher.Constraint("Coincident", 14, 2, 15, 1),
    Sketcher.Constraint("Coincident", 15, 2, 12, 1),
    Sketcher.Constraint("Vertical", 0),
    Sketcher.Constraint("Horizontal", 1),
    Sketcher.Constraint("Vertical", 2),
    Sketcher.Constraint("Horizontal", 3),
    Sketcher.Constraint("Vertical", 4),
    Sketcher.Constraint("Horizontal", 5),
    Sketcher.Constraint("Vertical", 6),
    Sketcher.Constraint("Horizontal", 7),
    Sketcher.Constraint("Vertical", 8),
    Sketcher.Constraint("Horizontal", 9),
    Sketcher.Constraint("Vertical", 10),
    Sketcher.Constraint("Horizontal", 11),
    Sketcher.Constraint("Vertical", 12),
    Sketcher.Constraint("Horizontal", 13),
    Sketcher.Constraint("Vertical", 14),
    Sketcher.Constraint("Horizontal", 15),
    Sketcher.Constraint("Symmetric", 1, 2, 4, 2, -2),
    Sketcher.Constraint("Symmetric", 3, 2, 6, 2, -2),
    Sketcher.Constraint("Symmetric", 9, 2, 12, 2, -2),
    Sketcher.Constraint("Symmetric", 11, 2, 14, 2, -2),
    Sketcher.Constraint("Equal", 7, 9),
    Sketcher.Constraint("Equal", 6, 8),
    Sketcher.Constraint("DistanceX", 1, 1, 1, 2, 5.4),
    Sketcher.Constraint("DistanceY", 0, 2, 0, 1, 10.2),
    Sketcher.Constraint("DistanceX", 5, 2, 0, 2, 3.0),
    Sketcher.Constraint("DistanceY", 0, 2, -1, 1, 116.7),
    Sketcher.Constraint("DistanceX", 8, 2, -1, 1, 21.8),
    Sketcher.Constraint("DistanceY", 8, 2, -1, 1, 112.1),
])
pad6 = doc.addObject("PartDesign::Pad", "Pad005")
body.addObject(pad6)
pad6.Profile = sketch14
pad6.Length = 5

doc.recompute()
